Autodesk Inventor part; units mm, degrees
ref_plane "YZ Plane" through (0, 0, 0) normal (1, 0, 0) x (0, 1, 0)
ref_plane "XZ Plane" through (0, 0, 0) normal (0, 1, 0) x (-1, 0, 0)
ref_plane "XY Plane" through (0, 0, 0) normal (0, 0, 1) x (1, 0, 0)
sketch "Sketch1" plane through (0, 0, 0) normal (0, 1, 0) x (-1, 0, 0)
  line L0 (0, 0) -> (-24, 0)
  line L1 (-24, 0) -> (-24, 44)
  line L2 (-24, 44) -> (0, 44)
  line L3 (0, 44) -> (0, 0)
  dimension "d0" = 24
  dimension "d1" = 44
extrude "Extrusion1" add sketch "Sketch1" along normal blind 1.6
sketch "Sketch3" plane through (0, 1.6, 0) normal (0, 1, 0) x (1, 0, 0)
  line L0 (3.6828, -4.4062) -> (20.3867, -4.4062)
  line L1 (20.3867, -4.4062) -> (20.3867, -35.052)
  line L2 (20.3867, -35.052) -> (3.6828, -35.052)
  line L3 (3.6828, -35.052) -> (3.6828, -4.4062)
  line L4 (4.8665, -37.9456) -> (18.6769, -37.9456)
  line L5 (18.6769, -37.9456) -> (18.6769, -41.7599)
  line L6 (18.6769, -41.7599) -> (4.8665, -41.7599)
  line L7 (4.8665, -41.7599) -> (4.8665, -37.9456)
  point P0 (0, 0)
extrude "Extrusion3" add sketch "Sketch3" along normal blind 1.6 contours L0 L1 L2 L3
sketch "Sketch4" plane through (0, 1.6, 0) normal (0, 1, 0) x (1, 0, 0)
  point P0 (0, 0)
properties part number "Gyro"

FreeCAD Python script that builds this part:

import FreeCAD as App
import Part
import Sketcher

V = App.Vector

doc = App.newDocument("Part")
body = doc.addObject("PartDesign::Body", "Body")

sketch1 = body.newObject("Sketcher::SketchObject", "Sketch")
sketch1.AttachmentSupport = (doc.getObject("XZ_Plane"), [""])
sketch1.MapMode = "FlatFace"
sketch1.addGeometry(Part.LineSegment(V(24, 0, 0), V(0, 0, 0)), False)
sketch1.addGeometry(Part.LineSegment(V(0, 0, 0), V(0, 44, 0)), False)
sketch1.addGeometry(Part.LineSegment(V(0, 44, 0), V(24, 44, 0)), False)
sketch1.addGeometry(Part.LineSegment(V(24, 44, 0), V(24, 0, 0)), False)
sketch1.addConstraint(Sketcher.Constraint("Coincident", 0, 2, 1, 1))
sketch1.addConstraint(Sketcher.Constraint("Coincident", 1, 2, 2, 1))
sketch1.addConstraint(Sketcher.Constraint("Coincident", 2, 2, 3, 1))
sketch1.addConstraint(Sketcher.Constraint("Coincident", 3, 2, 0, 1))
sketch1.addConstraint(Sketcher.Constraint("Horizontal", 0))
sketch1.addConstraint(Sketcher.Constraint("Vertical", 1))
sketch1.addConstraint(Sketcher.Constraint("Horizontal", 2))
sketch1.addConstraint(Sketcher.Constraint("Vertical", 3))
sketch1.addConstraint(Sketcher.Constraint("Coincident", 0, 2, -1, 1))
sketch1.addConstraint(Sketcher.Constraint("DistanceX", 0, 2, 0, 1, 24.0))
sketch1.addConstraint(Sketcher.Constraint("DistanceY", 1, 1, 1, 2, 44.0))
pad1 = body.newObject("PartDesign::Pad", "Pad")
pad1.Profile = sketch1
pad1.Length = 1.6
pad1.Reversed = True

sketch2 = body.newObject("Sketcher::SketchObject", "Sketch001")
sketch2.AttachmentSupport = (doc.getObject("XZ_Plane"), [""])
sketch2.MapMode = "FlatFace"
sketch2.AttachmentOffset = App.Placement(V(0, 0, -1.6), App.Rotation())
sketch2.addGeometry(Part.LineSegment(V(20, 4, 0), V(4, 4, 0)), False)
sketch2.addGeometry(Part.LineSegment(V(4, 4, 0), V(4, 35, 0)), False)
sketch2.addGeometry(Part.LineSegment(V(4, 35, 0), V(20, 35, 0)), False)
sketch2.addGeometry(Part.LineSegment(V(20, 35, 0), V(20, 4, 0)), False)
sketch2.addConstraint(Sketcher.Constraint("Coincident", 0, 2, 1, 1))
sketch2.addConstraint(Sketcher.Constraint("Coincident", 1, 2, 2, 1))
sketch2.addConstraint(Sketcher.Constraint("Coincident", 2, 2, 3, 1))
sketch2.addConstraint(Sketcher.Constraint("Coincident", 3, 2, 0, 1))
sketch2.addConstraint(Sketcher.Constraint("Horizontal", 0))
sketch2.addConstraint(Sketcher.Constraint("Vertical", 1))
sketch2.addConstraint(Sketcher.Constraint("Horizontal", 2))
sketch2.addConstraint(Sketcher.Constraint("Vertical", 3))
sketch2.addConstraint(Sketcher.Constraint("DistanceX", 0, 2, 0, 1, 16.704))
sketch2.addConstraint(Sketcher.Constraint("DistanceY", 1, 1, 1, 2, 30.6458))
sketch2.addConstraint(Sketcher.Constraint("DistanceY", -1, 1, 1, 2, 35.052))
sketch2.addConstraint(Sketcher.Constraint("DistanceX", -1, 1, 0, 2, 3.6828))
pad2 = body.newObject("PartDesign::Pad", "Pad001")
pad2.Profile = sketch2
pad2.Length = 1.6
pad2.Reversed = True

doc.recompute()
